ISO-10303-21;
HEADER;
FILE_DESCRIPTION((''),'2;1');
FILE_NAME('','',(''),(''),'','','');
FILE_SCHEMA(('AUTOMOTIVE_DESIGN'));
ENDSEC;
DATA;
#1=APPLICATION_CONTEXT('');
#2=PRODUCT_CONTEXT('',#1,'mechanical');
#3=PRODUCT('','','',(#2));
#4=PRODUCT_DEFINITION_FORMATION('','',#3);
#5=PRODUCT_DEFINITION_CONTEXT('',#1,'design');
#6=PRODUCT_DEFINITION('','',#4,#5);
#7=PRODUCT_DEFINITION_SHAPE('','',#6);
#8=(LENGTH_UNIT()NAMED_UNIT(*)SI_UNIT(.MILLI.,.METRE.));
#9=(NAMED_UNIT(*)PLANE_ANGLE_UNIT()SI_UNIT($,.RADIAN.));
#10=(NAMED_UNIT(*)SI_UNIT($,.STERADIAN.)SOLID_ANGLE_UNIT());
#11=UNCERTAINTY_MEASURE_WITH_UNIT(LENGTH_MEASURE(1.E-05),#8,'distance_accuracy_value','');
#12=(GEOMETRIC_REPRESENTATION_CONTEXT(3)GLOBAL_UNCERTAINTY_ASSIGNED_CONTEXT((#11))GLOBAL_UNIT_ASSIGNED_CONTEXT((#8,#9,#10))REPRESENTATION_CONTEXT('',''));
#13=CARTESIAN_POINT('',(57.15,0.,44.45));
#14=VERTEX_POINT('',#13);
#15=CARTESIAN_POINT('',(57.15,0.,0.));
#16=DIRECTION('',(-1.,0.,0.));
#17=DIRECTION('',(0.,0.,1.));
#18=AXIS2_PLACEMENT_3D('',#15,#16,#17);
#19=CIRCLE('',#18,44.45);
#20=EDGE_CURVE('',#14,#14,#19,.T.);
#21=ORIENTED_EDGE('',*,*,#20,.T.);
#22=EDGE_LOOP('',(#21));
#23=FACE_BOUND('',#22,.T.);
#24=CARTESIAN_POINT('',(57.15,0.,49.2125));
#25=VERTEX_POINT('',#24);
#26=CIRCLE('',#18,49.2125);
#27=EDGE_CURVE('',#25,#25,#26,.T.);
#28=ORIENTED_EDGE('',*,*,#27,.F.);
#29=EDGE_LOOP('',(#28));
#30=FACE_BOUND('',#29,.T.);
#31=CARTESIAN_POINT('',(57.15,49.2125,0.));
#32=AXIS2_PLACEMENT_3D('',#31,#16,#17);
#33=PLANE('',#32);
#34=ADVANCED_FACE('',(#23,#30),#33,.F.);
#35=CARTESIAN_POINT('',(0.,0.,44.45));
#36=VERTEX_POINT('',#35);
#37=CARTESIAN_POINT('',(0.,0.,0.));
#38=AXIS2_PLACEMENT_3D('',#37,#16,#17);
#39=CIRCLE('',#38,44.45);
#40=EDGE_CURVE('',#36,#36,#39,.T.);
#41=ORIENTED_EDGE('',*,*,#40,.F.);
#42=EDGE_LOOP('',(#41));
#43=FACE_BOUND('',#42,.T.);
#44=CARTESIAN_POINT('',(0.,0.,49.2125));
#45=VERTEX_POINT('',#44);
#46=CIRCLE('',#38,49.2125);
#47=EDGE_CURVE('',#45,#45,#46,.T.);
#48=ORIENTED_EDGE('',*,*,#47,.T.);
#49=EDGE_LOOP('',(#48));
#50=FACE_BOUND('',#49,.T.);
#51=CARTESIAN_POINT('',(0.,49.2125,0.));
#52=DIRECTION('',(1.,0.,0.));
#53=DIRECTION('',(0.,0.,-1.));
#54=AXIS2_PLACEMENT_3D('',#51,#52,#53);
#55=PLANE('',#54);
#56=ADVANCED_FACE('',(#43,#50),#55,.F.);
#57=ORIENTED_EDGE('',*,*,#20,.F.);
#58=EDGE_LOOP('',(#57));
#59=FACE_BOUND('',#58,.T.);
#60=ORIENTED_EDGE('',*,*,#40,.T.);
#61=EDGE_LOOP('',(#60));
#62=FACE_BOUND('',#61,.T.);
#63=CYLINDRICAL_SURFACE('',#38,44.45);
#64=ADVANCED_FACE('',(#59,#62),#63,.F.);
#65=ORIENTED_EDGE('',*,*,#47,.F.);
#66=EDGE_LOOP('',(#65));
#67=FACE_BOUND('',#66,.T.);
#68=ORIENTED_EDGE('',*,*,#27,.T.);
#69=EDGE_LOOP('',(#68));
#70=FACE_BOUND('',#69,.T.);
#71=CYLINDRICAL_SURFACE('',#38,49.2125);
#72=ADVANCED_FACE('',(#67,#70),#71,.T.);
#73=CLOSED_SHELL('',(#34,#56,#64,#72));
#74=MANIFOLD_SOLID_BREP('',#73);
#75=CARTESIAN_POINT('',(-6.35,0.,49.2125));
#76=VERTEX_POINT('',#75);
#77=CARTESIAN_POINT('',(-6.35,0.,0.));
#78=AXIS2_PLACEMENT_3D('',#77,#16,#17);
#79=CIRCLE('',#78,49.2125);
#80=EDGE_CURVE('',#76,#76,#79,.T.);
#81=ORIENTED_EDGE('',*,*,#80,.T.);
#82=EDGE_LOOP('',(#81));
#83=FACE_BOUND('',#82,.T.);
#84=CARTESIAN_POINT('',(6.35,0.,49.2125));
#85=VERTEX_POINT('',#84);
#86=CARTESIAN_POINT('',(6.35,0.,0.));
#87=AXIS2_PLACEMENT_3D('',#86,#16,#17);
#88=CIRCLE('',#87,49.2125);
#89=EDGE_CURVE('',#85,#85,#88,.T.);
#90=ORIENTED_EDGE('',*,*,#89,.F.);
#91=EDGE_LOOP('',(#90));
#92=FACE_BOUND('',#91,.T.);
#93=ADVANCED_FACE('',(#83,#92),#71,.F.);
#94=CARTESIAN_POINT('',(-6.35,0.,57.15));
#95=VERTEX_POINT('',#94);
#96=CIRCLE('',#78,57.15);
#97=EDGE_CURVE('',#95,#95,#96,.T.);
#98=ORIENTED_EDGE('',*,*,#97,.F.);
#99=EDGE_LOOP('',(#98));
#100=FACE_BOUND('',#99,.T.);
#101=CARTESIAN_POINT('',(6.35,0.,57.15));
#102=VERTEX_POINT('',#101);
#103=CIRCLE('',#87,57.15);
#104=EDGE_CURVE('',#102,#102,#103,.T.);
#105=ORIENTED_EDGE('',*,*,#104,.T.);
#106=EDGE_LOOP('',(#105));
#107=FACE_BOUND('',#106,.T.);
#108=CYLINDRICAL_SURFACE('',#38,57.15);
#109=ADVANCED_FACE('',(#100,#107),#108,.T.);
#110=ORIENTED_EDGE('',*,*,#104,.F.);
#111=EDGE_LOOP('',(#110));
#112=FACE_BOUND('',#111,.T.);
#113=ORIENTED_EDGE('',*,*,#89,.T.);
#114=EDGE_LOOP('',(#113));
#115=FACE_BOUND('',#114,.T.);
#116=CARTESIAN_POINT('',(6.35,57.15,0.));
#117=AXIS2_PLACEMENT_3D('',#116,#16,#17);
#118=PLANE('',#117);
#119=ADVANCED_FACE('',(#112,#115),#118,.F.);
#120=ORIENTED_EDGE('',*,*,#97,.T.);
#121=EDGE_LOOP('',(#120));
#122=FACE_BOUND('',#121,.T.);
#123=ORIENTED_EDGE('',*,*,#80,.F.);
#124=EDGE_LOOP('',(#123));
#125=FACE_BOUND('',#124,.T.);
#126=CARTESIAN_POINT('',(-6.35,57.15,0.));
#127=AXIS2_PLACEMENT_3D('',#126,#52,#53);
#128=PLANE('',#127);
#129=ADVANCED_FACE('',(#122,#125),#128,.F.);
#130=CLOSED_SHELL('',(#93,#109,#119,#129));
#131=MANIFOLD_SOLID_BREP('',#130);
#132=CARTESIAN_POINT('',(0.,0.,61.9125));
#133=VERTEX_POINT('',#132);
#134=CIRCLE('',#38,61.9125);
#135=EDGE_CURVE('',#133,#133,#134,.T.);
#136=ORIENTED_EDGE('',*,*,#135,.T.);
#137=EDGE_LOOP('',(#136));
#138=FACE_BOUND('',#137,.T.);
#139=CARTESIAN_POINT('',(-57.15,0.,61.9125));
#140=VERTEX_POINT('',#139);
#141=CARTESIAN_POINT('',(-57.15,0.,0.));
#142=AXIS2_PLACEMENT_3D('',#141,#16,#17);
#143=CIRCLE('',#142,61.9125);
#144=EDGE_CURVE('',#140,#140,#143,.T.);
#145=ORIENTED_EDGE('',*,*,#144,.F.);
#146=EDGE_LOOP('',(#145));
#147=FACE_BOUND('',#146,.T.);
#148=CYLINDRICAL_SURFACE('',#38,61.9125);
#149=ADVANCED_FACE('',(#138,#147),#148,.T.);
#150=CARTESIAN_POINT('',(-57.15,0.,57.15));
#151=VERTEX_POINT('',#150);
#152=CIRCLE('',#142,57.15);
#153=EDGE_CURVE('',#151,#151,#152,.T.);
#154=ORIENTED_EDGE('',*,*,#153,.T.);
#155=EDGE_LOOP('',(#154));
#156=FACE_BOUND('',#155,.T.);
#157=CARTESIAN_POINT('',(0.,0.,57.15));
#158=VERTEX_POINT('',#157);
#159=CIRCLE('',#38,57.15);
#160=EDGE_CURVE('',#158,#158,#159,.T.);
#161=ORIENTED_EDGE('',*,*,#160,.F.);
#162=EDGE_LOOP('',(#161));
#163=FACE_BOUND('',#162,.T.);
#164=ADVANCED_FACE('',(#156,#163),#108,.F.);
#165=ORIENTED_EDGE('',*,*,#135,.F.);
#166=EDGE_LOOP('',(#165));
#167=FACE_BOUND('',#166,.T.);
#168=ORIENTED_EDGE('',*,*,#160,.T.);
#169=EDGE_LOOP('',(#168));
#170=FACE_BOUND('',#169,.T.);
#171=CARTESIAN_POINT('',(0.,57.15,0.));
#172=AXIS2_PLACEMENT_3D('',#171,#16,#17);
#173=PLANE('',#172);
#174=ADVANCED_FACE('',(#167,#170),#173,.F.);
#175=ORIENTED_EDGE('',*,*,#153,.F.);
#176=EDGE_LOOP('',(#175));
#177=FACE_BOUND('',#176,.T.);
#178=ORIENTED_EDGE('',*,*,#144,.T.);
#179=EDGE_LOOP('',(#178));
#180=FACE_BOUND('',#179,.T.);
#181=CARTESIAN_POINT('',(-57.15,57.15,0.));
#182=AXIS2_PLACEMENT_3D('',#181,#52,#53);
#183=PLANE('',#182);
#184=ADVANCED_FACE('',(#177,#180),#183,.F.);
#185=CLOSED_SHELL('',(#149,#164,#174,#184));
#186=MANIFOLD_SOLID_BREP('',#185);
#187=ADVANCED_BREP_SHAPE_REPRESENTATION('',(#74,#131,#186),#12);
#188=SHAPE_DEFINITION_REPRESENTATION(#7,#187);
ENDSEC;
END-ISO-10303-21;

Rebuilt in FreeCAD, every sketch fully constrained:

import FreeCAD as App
import Part
import Sketcher
Q = App.Units.Quantity

doc = App.newDocument("Part")
body = doc.addObject("PartDesign::Body", "Body")

sketch1 = body.newObject("Sketcher::SketchObject", "Sketch")
sketch1.AttachmentSupport = (doc.getObject("XY_Plane"), [""])
sketch1.MapMode = "FlatFace"
sketch1.addGeometry([
    Part.LineSegment(App.Vector(-6, 57, 0), App.Vector(-6, 49, 0)),
    Part.LineSegment(App.Vector(-6, 49, 0), App.Vector(6, 49, 0)),
    Part.LineSegment(App.Vector(6, 49, 0), App.Vector(6, 57, 0)),
    Part.LineSegment(App.Vector(6, 57, 0), App.Vector(-6, 57, 0)),
], False)
sketch1.addConstraint([
    Sketcher.Constraint("Coincident", 0, 2, 1, 1),
    Sketcher.Constraint("Coincident", 1, 2, 2, 1),
    Sketcher.Constraint("Coincident", 2, 2, 3, 1),
    Sketcher.Constraint("Coincident", 3, 2, 0, 1),
    Sketcher.Constraint("Vertical", 0),
    Sketcher.Constraint("Horizontal", 1),
    Sketcher.Constraint("Vertical", 2),
    Sketcher.Constraint("Horizontal", 3),
    Sketcher.Constraint("DistanceX", 1, 1, 1, 2, Q("0.5 in")),
    Sketcher.Constraint("DistanceY", 0, 2, 0, 1, Q("0.3125 in")),
    Sketcher.Constraint("DistanceX", 0, 2, -1, 1, Q("0.25 in")),
    Sketcher.Constraint("DistanceY", -1, 1, 2, 2, Q("2.25 in")),
])
revolution = body.newObject("PartDesign::Revolution", "Revolution")
revolution.Profile = sketch1
revolution.ReferenceAxis = (sketch1, ["H_Axis"])
revolution.Angle = 360
body2 = doc.addObject("PartDesign::Body", "Body001")
body2.AllowCompound = True

sketch2 = body2.newObject("Sketcher::SketchObject", "Sketch001")
sketch2.AttachmentSupport = (doc.getObject("XY_Plane001"), [""])
sketch2.MapMode = "FlatFace"
sketch2.addGeometry([
    Part.LineSegment(App.Vector(-57.1, 61.9, 0), App.Vector(-57.1, 57.1, 0)),
    Part.LineSegment(App.Vector(-57.1, 57.1, 0), App.Vector(0, 57.1, 0)),
    Part.LineSegment(App.Vector(0, 57.1, 0), App.Vector(0, 61.9, 0)),
    Part.LineSegment(App.Vector(0, 61.9, 0), App.Vector(-57.1, 61.9, 0)),
    Part.LineSegment(App.Vector(0, 49.2, 0), App.Vector(0, 44.5, 0)),
    Part.LineSegment(App.Vector(0, 44.5, 0), App.Vector(57.1, 44.5, 0)),
    Part.LineSegment(App.Vector(57.1, 44.5, 0), App.Vector(57.1, 49.2, 0)),
    Part.LineSegment(App.Vector(57.1, 49.2, 0), App.Vector(0, 49.2, 0)),
], False)
sketch2.addConstraint([
    Sketcher.Constraint("Coincident", 0, 2, 1, 1),
    Sketcher.Constraint("Coincident", 1, 2, 2, 1),
    Sketcher.Constraint("Coincident", 2, 2, 3, 1),
    Sketcher.Constraint("Coincident", 3, 2, 0, 1),
    Sketcher.Constraint("Coincident", 4, 2, 5, 1),
    Sketcher.Constraint("Coincident", 5, 2, 6, 1),
    Sketcher.Constraint("Coincident", 6, 2, 7, 1),
    Sketcher.Constraint("Coincident", 7, 2, 4, 1),
    Sketcher.Constraint("Vertical", 0),
    Sketcher.Constraint("Horizontal", 1),
    Sketcher.Constraint("Vertical", 2),
    Sketcher.Constraint("Horizontal", 3),
    Sketcher.Constraint("Vertical", 4),
    Sketcher.Constraint("Horizontal", 5),
    Sketcher.Constraint("Vertical", 6),
    Sketcher.Constraint("Horizontal", 7),
    Sketcher.Constraint("PointOnObject", 1, 2, -2),
    Sketcher.Constraint("PointOnObject", 4, 2, -2),
    Sketcher.Constraint("Equal", 3, 5),
    Sketcher.Constraint("Equal", 2, 4),
    Sketcher.Constraint("DistanceX", 1, 1, 1, 2, Q("2.25 in")),
    Sketcher.Constraint("DistanceY", 4, 2, 1, 2, Q("0.5 in")),
    Sketcher.Constraint("DistanceY", 0, 2, 0, 1, Q("0.1875 in")),
    Sketcher.Constraint("DistanceY", -1, 1, 0, 2, Q("2.25 in")),
])
revolution2 = body2.newObject("PartDesign::Revolution", "Revolution001")
revolution2.Profile = sketch2
revolution2.ReferenceAxis = (sketch2, ["H_Axis"])
revolution2.Angle = 360

doc.recompute()
